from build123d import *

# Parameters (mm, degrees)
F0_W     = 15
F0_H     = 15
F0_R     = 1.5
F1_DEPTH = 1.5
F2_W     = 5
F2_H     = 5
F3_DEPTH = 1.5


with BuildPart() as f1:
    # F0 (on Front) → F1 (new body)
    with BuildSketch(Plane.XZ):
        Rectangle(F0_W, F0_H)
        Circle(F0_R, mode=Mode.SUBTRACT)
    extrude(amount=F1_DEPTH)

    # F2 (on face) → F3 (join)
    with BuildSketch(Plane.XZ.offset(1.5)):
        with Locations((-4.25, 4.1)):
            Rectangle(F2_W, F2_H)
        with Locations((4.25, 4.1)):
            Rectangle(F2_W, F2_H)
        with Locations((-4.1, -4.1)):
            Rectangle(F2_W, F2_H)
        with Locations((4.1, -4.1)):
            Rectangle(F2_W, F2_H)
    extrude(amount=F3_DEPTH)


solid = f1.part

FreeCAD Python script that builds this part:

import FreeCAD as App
import Part
import Sketcher

V = App.Vector
Q = App.Units.Quantity

doc = App.newDocument("Part")
params = doc.addObject("Spreadsheet::Sheet", "Params")
for row, (alias, value) in enumerate([
    ("sketch1_diameter", "3 mm"),
    ("sketch1_width", "15 mm"),
    ("pad1_length", "1.5 mm"),
    ("sketch2_width", "5 mm"),
    ("pad2_length", "1.5 mm"),
], start=1):
    params.set(f"A{row}", alias)
    params.set(f"B{row}", "=" + value)
    params.setAlias(f"B{row}", alias)

body = doc.addObject("PartDesign::Body", "Body")

# Sketch on XZ plane
sketch1 = doc.addObject("Sketcher::SketchObject", "Sketch")
body.addObject(sketch1)
sketch1.AttachmentSupport = (doc.XZ_Plane, [""])
sketch1.MapMode = "FlatFace"
sketch1.addGeometry([
    Part.LineSegment(V(-7.5, 7.5, 0), V(-7.5, -7.5, 0)),  # 0
    Part.LineSegment(V(-7.5, -7.5, 0), V(7.5, -7.5, 0)),  # 1
    Part.LineSegment(V(7.5, -7.5, 0), V(7.5, 7.5, 0)),  # 2
    Part.LineSegment(V(7.5, 7.5, 0), V(-7.5, 7.5, 0)),  # 3
    Part.Circle(V(0, 0, 0), V(0, 0, 1), 1.5),  # 4
], False)
sketch1.addConstraint([
    Sketcher.Constraint("Coincident", 0, 2, 1, 1),
    Sketcher.Constraint("Coincident", 1, 2, 2, 1),
    Sketcher.Constraint("Coincident", 2, 2, 3, 1),
    Sketcher.Constraint("Coincident", 3, 2, 0, 1),
    Sketcher.Constraint("Vertical", 0),
    Sketcher.Constraint("Horizontal", 1),
    Sketcher.Constraint("Vertical", 2),
    Sketcher.Constraint("Horizontal", 3),
    Sketcher.Constraint("Coincident", 4, 3, -1, 1),
    Sketcher.Constraint("Symmetric", 0, 2, 2, 2, -1, 1),
    Sketcher.Constraint("Equal", 3, 0),
    Sketcher.Constraint("Diameter", 4, Q("3 mm")),
    Sketcher.Constraint("DistanceX", 1, 1, 1, 2, Q("15 mm")),
])
sketch1.setExpression("Constraints[11]", "Params.sketch1_diameter")
sketch1.setExpression("Constraints[12]", "Params.sketch1_width")
pad1 = doc.addObject("PartDesign::Pad", "Pad")
body.addObject(pad1)
pad1.Profile = sketch1
pad1.setExpression("Length", "Params.pad1_length")

# Sketch on XZ plane
sketch2 = doc.addObject("Sketcher::SketchObject", "Sketch001")
body.addObject(sketch2)
sketch2.AttachmentSupport = (doc.XZ_Plane, [""])
sketch2.MapMode = "FlatFace"
sketch2.AttachmentOffset = App.Placement(V(0, 0, 1.5), App.Rotation())
sketch2.addGeometry([
    Part.LineSegment(V(-7, 7, 0), V(-7, 2, 0)),  # 0
    Part.LineSegment(V(-7, 2, 0), V(-2, 2, 0)),  # 1
    Part.LineSegment(V(-2, 2, 0), V(-2, 7, 0)),  # 2
    Part.LineSegment(V(-2, 7, 0), V(-7, 7, 0)),  # 3
    Part.LineSegment(V(2, 7, 0), V(2, 2, 0)),  # 4
    Part.LineSegment(V(2, 2, 0), V(7, 2, 0)),  # 5
    Part.LineSegment(V(7, 2, 0), V(7, 7, 0)),  # 6
    Part.LineSegment(V(7, 7, 0), V(2, 7, 0)),  # 7
    Part.LineSegment(V(-7, -2, 0), V(-7, -7, 0)),  # 8
    Part.LineSegment(V(-7, -7, 0), V(-2, -7, 0)),  # 9
    Part.LineSegment(V(-2, -7, 0), V(-2, -2, 0)),  # 10
    Part.LineSegment(V(-2, -2, 0), V(-7, -2, 0)),  # 11
    Part.LineSegment(V(2, -2, 0), V(2, -7, 0)),  # 12
    Part.LineSegment(V(2, -7, 0), V(7, -7, 0)),  # 13
    Part.LineSegment(V(7, -7, 0), V(7, -2, 0)),  # 14
    Part.LineSegment(V(7, -2, 0), V(2, -2, 0)),  # 15
], False)
sketch2.addConstraint([
    Sketcher.Constraint("Coincident", 0, 2, 1, 1),
    Sketcher.Constraint("Coincident", 1, 2, 2, 1),
    Sketcher.Constraint("Coincident", 2, 2, 3, 1),
    Sketcher.Constraint("Coincident", 3, 2, 0, 1),
    Sketcher.Constraint("Coincident", 4, 2, 5, 1),
    Sketcher.Constraint("Coincident", 5, 2, 6, 1),
    Sketcher.Constraint("Coincident", 6, 2, 7, 1),
    Sketcher.Constraint("Coincident", 7, 2, 4, 1),
    Sketcher.Constraint("Coincident", 8, 2, 9, 1),
    Sketcher.Constraint("Coincident", 9, 2, 10, 1),
    Sketcher.Constraint("Coincident", 10, 2, 11, 1),
    Sketcher.Constraint("Coincident", 11, 2, 8, 1),
    Sketcher.Constraint("Coincident", 12, 2, 13, 1),
    Sketcher.Constraint("Coincident", 13, 2, 14, 1),
    Sketcher.Constraint("Coincident", 14, 2, 15, 1),
    Sketcher.Constraint("Coincident", 15, 2, 12, 1),
    Sketcher.Constraint("Vertical", 0),
    Sketcher.Constraint("Horizontal", 1),
    Sketcher.Constraint("Vertical", 2),
    Sketcher.Constraint("Horizontal", 3),
    Sketcher.Constraint("Vertical", 4),
    Sketcher.Constraint("Horizontal", 5),
    Sketcher.Constraint("Vertical", 6),
    Sketcher.Constraint("Horizontal", 7),
    Sketcher.Constraint("Vertical", 8),
    Sketcher.Constraint("Horizontal", 9),
    Sketcher.Constraint("Vertical", 10),
    Sketcher.Constraint("Horizontal", 11),
    Sketcher.Constraint("Vertical", 12),
    Sketcher.Constraint("Horizontal", 13),
    Sketcher.Constraint("Vertical", 14),
    Sketcher.Constraint("Horizontal", 15),
    Sketcher.Constraint("Symmetric", 1, 2, 4, 2, -2),
    Sketcher.Constraint("Symmetric", 3, 2, 6, 2, -2),
    Sketcher.Constraint("Symmetric", 9, 2, 12, 2, -2),
    Sketcher.Constraint("Symmetric", 11, 2, 14, 2, -2),
    Sketcher.Constraint("Equal", 7, 9),
    Sketcher.Constraint("Equal", 15, 0),
    Sketcher.Constraint("Equal", 6, 8),
    Sketcher.Constraint("DistanceX", 1, 1, 1, 2, Q("5 mm")),
    Sketcher.Constraint("DistanceY", -1, 1, 0, 2, Q("1.6 mm")),
    Sketcher.Constraint("DistanceX", 8, 2, -1, 1, Q("6.6 mm")),
    Sketcher.Constraint("DistanceY", 8, 2, -1, 1, Q("6.6 mm")),
    Sketcher.Constraint("DistanceX", 1, 2, 4, 2, Q("3.5 mm")),
])
sketch2.setExpression("Constraints[39]", "Params.sketch2_width")
pad2 = doc.addObject("PartDesign::Pad", "Pad001")
body.addObject(pad2)
pad2.Profile = sketch2
pad2.setExpression("Length", "Params.pad2_length")

doc.recompute()
